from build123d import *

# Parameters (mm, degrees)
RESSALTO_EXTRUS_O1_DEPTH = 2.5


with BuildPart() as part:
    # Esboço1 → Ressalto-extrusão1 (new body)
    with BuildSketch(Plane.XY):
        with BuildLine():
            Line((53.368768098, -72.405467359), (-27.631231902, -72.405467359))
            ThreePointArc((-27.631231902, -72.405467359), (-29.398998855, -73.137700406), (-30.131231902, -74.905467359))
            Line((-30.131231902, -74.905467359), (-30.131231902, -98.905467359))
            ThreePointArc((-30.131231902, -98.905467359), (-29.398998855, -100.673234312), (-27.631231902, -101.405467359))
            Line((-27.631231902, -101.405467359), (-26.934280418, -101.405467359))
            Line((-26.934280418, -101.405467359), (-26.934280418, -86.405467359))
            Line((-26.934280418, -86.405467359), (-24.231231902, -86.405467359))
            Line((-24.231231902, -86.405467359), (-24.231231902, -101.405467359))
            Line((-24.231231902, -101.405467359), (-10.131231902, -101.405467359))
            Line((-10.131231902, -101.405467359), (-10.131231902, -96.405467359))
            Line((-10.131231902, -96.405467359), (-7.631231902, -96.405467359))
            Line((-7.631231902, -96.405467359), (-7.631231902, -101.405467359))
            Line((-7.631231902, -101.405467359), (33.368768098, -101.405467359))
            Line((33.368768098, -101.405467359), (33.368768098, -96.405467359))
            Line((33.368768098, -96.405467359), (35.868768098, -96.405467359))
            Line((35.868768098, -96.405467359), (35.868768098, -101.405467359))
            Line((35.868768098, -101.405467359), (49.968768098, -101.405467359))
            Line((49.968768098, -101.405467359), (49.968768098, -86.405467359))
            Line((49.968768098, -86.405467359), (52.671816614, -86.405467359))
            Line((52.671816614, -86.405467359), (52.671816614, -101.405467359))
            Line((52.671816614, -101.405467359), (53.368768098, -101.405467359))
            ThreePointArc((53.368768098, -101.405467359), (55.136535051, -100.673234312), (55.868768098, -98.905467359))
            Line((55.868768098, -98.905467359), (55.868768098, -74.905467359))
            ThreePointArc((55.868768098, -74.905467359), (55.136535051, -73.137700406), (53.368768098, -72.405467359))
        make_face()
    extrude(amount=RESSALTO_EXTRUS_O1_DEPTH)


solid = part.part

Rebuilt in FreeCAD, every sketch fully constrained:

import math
import FreeCAD as App
import Part
import Sketcher
Q = App.Units.Quantity

doc = App.newDocument("Part")
body = doc.addObject("PartDesign::Body", "Body")

# Sketch on XY plane
sketch1 = doc.addObject("Sketcher::SketchObject", "Sketch")
body.addObject(sketch1)
sketch1.AttachmentSupport = (doc.XY_Plane, [""])
sketch1.MapMode = "FlatFace"
sketch1.addGeometry(Part.LineSegment(App.Vector(53.368768, -72.405467, 0), App.Vector(-27.631232, -72.405467, 0)), False)
sketch1.addGeometry(Part.ArcOfCircle(Part.Circle(App.Vector(-27.631232, -74.905467, 0), App.Vector(0, 0, 1), 2.5), math.radians(90), math.radians(180)), False)
sketch1.addGeometry(Part.LineSegment(App.Vector(-30.131232, -74.905467, 0), App.Vector(-30.131232, -98.905467, 0)), False)
sketch1.addGeometry(Part.ArcOfCircle(Part.Circle(App.Vector(-27.631232, -98.905467, 0), App.Vector(0, 0, 1), 2.5), math.radians(180), math.radians(270)), False)
sketch1.addGeometry(Part.LineSegment(App.Vector(-27.631232, -101.405467, 0), App.Vector(-26.93428, -101.405467, 0)), False)
sketch1.addGeometry(Part.LineSegment(App.Vector(-26.93428, -101.405467, 0), App.Vector(-26.93428, -86.405467, 0)), False)
sketch1.addGeometry(Part.LineSegment(App.Vector(-26.93428, -86.405467, 0), App.Vector(-24.231232, -86.405467, 0)), False)
sketch1.addGeometry(Part.LineSegment(App.Vector(-24.231232, -86.405467, 0), App.Vector(-24.231232, -101.405467, 0)), False)
sketch1.addGeometry(Part.LineSegment(App.Vector(-24.231232, -101.405467, 0), App.Vector(-10.131232, -101.405467, 0)), False)
sketch1.addGeometry(Part.LineSegment(App.Vector(-10.131232, -101.405467, 0), App.Vector(-10.131232, -96.405467, 0)), False)
sketch1.addGeometry(Part.LineSegment(App.Vector(-10.131232, -96.405467, 0), App.Vector(-7.631232, -96.405467, 0)), False)
sketch1.addGeometry(Part.LineSegment(App.Vector(-7.631232, -96.405467, 0), App.Vector(-7.631232, -101.405467, 0)), False)
sketch1.addGeometry(Part.LineSegment(App.Vector(-7.631232, -101.405467, 0), App.Vector(33.368768, -101.405467, 0)), False)
sketch1.addGeometry(Part.LineSegment(App.Vector(33.368768, -101.405467, 0), App.Vector(33.368768, -96.405467, 0)), False)
sketch1.addGeometry(Part.LineSegment(App.Vector(33.368768, -96.405467, 0), App.Vector(35.868768, -96.405467, 0)), False)
sketch1.addGeometry(Part.LineSegment(App.Vector(35.868768, -96.405467, 0), App.Vector(35.868768, -101.405467, 0)), False)
sketch1.addGeometry(Part.LineSegment(App.Vector(35.868768, -101.405467, 0), App.Vector(49.968768, -101.405467, 0)), False)
sketch1.addGeometry(Part.LineSegment(App.Vector(49.968768, -101.405467, 0), App.Vector(49.968768, -86.405467, 0)), False)
sketch1.addGeometry(Part.LineSegment(App.Vector(49.968768, -86.405467, 0), App.Vector(52.671817, -86.405467, 0)), False)
sketch1.addGeometry(Part.LineSegment(App.Vector(52.671817, -86.405467, 0), App.Vector(52.671817, -101.405467, 0)), False)
sketch1.addGeometry(Part.LineSegment(App.Vector(52.671817, -101.405467, 0), App.Vector(53.368768, -101.405467, 0)), False)
sketch1.addGeometry(Part.ArcOfCircle(Part.Circle(App.Vector(53.368768, -98.905467, 0), App.Vector(0, 0, 1), 2.5), math.radians(-90), math.radians(0)), False)
sketch1.addGeometry(Part.LineSegment(App.Vector(55.868768, -98.905467, 0), App.Vector(55.868768, -74.905467, 0)), False)
sketch1.addGeometry(Part.ArcOfCircle(Part.Circle(App.Vector(53.368768, -74.905467, 0), App.Vector(0, 0, 1), 2.5), math.radians(0), math.radians(90)), False)
sketch1.addConstraint(Sketcher.Constraint("Tangent", 0, 2, 1, 1))
sketch1.addConstraint(Sketcher.Constraint("Tangent", 1, 2, 2, 1))
sketch1.addConstraint(Sketcher.Constraint("Tangent", 2, 2, 3, 1))
sketch1.addConstraint(Sketcher.Constraint("Tangent", 3, 2, 4, 1))
sketch1.addConstraint(Sketcher.Constraint("Coincident", 4, 2, 5, 1))
sketch1.addConstraint(Sketcher.Constraint("Coincident", 5, 2, 6, 1))
sketch1.addConstraint(Sketcher.Constraint("Coincident", 6, 2, 7, 1))
sketch1.addConstraint(Sketcher.Constraint("Coincident", 7, 2, 8, 1))
sketch1.addConstraint(Sketcher.Constraint("Coincident", 8, 2, 9, 1))
sketch1.addConstraint(Sketcher.Constraint("Coincident", 9, 2, 10, 1))
sketch1.addConstraint(Sketcher.Constraint("Coincident", 10, 2, 11, 1))
sketch1.addConstraint(Sketcher.Constraint("Coincident", 11, 2, 12, 1))
sketch1.addConstraint(Sketcher.Constraint("Coincident", 12, 2, 13, 1))
sketch1.addConstraint(Sketcher.Constraint("Coincident", 13, 2, 14, 1))
sketch1.addConstraint(Sketcher.Constraint("Coincident", 14, 2, 15, 1))
sketch1.addConstraint(Sketcher.Constraint("Coincident", 15, 2, 16, 1))
sketch1.addConstraint(Sketcher.Constraint("Coincident", 16, 2, 17, 1))
sketch1.addConstraint(Sketcher.Constraint("Coincident", 17, 2, 18, 1))
sketch1.addConstraint(Sketcher.Constraint("Coincident", 18, 2, 19, 1))
sketch1.addConstraint(Sketcher.Constraint("Coincident", 19, 2, 20, 1))
sketch1.addConstraint(Sketcher.Constraint("Tangent", 20, 2, 21, 1))
sketch1.addConstraint(Sketcher.Constraint("Tangent", 21, 2, 22, 1))
sketch1.addConstraint(Sketcher.Constraint("Tangent", 22, 2, 23, 1))
sketch1.addConstraint(Sketcher.Constraint("Tangent", 23, 2, 0, 1))
sketch1.addConstraint(Sketcher.Constraint("Horizontal", 0))
sketch1.addConstraint(Sketcher.Constraint("Vertical", 2))
sketch1.addConstraint(Sketcher.Constraint("Horizontal", 4))
sketch1.addConstraint(Sketcher.Constraint("Vertical", 5))
sketch1.addConstraint(Sketcher.Constraint("Horizontal", 6))
sketch1.addConstraint(Sketcher.Constraint("Vertical", 7))
sketch1.addConstraint(Sketcher.Constraint("Horizontal", 8))
sketch1.addConstraint(Sketcher.Constraint("Vertical", 9))
sketch1.addConstraint(Sketcher.Constraint("Horizontal", 10))
sketch1.addConstraint(Sketcher.Constraint("Vertical", 11))
sketch1.addConstraint(Sketcher.Constraint("Horizontal", 12))
sketch1.addConstraint(Sketcher.Constraint("Vertical", 13))
sketch1.addConstraint(Sketcher.Constraint("Horizontal", 14))
sketch1.addConstraint(Sketcher.Constraint("Vertical", 15))
sketch1.addConstraint(Sketcher.Constraint("Horizontal", 16))
sketch1.addConstraint(Sketcher.Constraint("Vertical", 17))
sketch1.addConstraint(Sketcher.Constraint("Horizontal", 18))
sketch1.addConstraint(Sketcher.Constraint("Vertical", 19))
sketch1.addConstraint(Sketcher.Constraint("Horizontal", 20))
sketch1.addConstraint(Sketcher.Constraint("Vertical", 22))
sketch1.addConstraint(Sketcher.Constraint("Equal", 1, 3))
sketch1.addConstraint(Sketcher.Constraint("Equal", 3, 21))
sketch1.addConstraint(Sketcher.Constraint("Equal", 21, 23))
sketch1.addConstraint(Sketcher.Constraint("Horizontal", 3, 3, 21, 3))
sketch1.addConstraint(Sketcher.Constraint("Horizontal", 4, 2, 7, 2))
sketch1.addConstraint(Sketcher.Constraint("Horizontal", 8, 2, 11, 2))
sketch1.addConstraint(Sketcher.Constraint("Horizontal", 10, 2, 13, 2))
sketch1.addConstraint(Sketcher.Constraint("Horizontal", 12, 2, 15, 2))
sketch1.addConstraint(Sketcher.Constraint("Horizontal", 6, 2, 17, 2))
sketch1.addConstraint(Sketcher.Constraint("Equal", 10, 14))
sketch1.addConstraint(Sketcher.Constraint("Equal", 8, 16))
sketch1.addConstraint(Sketcher.Constraint("Equal", 6, 18))
sketch1.addConstraint(Sketcher.Constraint("Equal", 4, 20))
sketch1.addConstraint(Sketcher.Constraint("Radius", 1, Q("2.5 mm")))
sketch1.addConstraint(Sketcher.Constraint("DistanceX", 0, 2, 0, 1, Q("81 mm")))
sketch1.addConstraint(Sketcher.Constraint("DistanceX", 12, 1, 12, 2, Q("41 mm")))
sketch1.addConstraint(Sketcher.Constraint("DistanceY", 2, 2, 2, 1, Q("24 mm")))
sketch1.addConstraint(Sketcher.Constraint("DistanceY", 5, 1, 5, 2, Q("15 mm")))
sketch1.addConstraint(Sketcher.Constraint("DistanceY", 9, 1, 9, 2, Q("5 mm")))
sketch1.addConstraint(Sketcher.Constraint("DistanceX", 8, 1, 8, 2, Q("14.1 mm")))
sketch1.addConstraint(Sketcher.Constraint("DistanceX", 10, 1, 10, 2, Q("2.5 mm")))
sketch1.addConstraint(Sketcher.Constraint("DistanceX", 4, 1, 4, 2, Q("0.696951 mm")))
sketch1.addConstraint(Sketcher.Constraint("DistanceX", 1, 3, -1, 1, Q("27.631232 mm")))
sketch1.addConstraint(Sketcher.Constraint("DistanceY", 1, 3, -1, 1, Q("74.905467 mm")))
pad1 = doc.addObject("PartDesign::Pad", "Pad")
body.addObject(pad1)
pad1.Profile = sketch1
pad1.Length = 2.5

doc.recompute()
